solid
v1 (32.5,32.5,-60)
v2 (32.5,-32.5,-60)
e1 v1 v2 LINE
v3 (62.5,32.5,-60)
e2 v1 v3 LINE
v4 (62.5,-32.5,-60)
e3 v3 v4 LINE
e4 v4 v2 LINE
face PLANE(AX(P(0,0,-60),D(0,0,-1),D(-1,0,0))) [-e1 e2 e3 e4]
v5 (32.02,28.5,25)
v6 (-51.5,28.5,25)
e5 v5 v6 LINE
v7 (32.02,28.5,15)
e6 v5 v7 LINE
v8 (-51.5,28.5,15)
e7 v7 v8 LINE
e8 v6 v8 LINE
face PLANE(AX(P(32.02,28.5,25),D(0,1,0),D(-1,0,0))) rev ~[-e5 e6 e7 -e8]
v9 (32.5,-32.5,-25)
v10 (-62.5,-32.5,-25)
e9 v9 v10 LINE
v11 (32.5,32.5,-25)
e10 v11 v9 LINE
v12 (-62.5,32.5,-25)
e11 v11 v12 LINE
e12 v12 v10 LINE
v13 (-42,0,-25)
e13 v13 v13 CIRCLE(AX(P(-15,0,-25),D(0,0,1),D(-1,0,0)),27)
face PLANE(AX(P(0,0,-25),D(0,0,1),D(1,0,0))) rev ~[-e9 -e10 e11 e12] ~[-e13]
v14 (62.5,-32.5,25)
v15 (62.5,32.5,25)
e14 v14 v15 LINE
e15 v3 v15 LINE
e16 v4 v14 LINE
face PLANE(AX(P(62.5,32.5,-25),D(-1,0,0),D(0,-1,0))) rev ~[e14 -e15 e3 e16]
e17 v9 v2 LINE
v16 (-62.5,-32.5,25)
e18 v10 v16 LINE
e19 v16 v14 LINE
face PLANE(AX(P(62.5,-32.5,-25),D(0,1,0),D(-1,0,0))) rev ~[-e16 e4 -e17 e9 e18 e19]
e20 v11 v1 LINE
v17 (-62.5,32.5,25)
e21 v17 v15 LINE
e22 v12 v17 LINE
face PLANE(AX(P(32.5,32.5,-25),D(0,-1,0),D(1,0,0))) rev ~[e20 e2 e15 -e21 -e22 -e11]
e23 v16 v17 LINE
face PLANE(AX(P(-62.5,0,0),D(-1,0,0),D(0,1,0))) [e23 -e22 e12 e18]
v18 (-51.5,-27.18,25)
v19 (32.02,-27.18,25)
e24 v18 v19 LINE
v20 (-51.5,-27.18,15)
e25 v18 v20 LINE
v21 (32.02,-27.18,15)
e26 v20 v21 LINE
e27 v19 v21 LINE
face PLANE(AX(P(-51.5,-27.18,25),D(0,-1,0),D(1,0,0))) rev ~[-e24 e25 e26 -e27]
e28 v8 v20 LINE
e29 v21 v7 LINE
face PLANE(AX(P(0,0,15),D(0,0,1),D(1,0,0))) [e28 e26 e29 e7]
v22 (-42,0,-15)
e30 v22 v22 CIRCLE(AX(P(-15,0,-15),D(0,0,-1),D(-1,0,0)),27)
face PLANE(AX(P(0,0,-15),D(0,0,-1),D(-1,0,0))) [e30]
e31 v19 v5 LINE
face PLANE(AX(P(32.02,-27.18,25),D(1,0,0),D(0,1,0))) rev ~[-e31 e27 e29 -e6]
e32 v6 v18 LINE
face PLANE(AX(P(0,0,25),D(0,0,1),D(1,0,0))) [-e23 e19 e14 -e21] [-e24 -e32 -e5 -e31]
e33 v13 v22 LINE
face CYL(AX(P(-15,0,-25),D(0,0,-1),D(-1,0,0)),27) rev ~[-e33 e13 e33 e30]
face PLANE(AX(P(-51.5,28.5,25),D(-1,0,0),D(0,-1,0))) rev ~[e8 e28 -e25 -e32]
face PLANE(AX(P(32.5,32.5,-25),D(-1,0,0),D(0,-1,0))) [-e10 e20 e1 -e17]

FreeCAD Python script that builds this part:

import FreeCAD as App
import Part
import Sketcher

V = App.Vector


def add_polygon(sketch, points):
    """Adds a closed chain of lines whose ends are joined by coincident constraints."""
    first, n = sketch.GeometryCount, len(points)
    for a, b in zip(points, points[1:] + points[:1]):
        sketch.addGeometry(Part.LineSegment(App.Vector(*a, 0), App.Vector(*b, 0)), False)
    for i in range(n):
        sketch.addConstraint(Sketcher.Constraint("Coincident", first + i, 2, first + (i + 1) % n, 1))

doc = App.newDocument("Part")
body = doc.addObject("PartDesign::Body", "Body")

# Sketch on XY plane
sketch1 = body.newObject("Sketcher::SketchObject", "Sketch")
sketch1.AttachmentSupport = (doc.getObject("XY_Plane"), [""])
sketch1.MapMode = "FlatFace"
add_polygon(sketch1, [(-62, 32), (-62, -32), (62, -32), (62, 32)])  # lines 0-3
sketch1.addConstraint(Sketcher.Constraint("Vertical", 0))
sketch1.addConstraint(Sketcher.Constraint("Horizontal", 1))
sketch1.addConstraint(Sketcher.Constraint("Vertical", 2))
sketch1.addConstraint(Sketcher.Constraint("Horizontal", 3))
sketch1.addConstraint(Sketcher.Constraint("Symmetric", 0, 2, 2, 2, -1, 1))
sketch1.addConstraint(Sketcher.Constraint("DistanceX", 1, 1, 1, 2, 125.0))
sketch1.addConstraint(Sketcher.Constraint("DistanceY", 0, 2, 0, 1, 65.0))
pad1 = body.newObject("PartDesign::Pad", "Pad")
pad1.Profile = sketch1
pad1.Length = 50
pad1.Midplane = True

# Sketch on XY plane
sketch2 = body.newObject("Sketcher::SketchObject", "Sketch001")
sketch2.AttachmentSupport = (doc.getObject("XY_Plane"), [""])
sketch2.MapMode = "FlatFace"
sketch2.AttachmentOffset = App.Placement(V(0, 0, -25), App.Rotation())
sketch2.addGeometry(Part.Circle(V(-15, 0, 0), V(0, 0, 1), 27), False)
sketch2.addConstraint(Sketcher.Constraint("PointOnObject", 0, 3, -1))
sketch2.addConstraint(Sketcher.Constraint("Diameter", 0, 54.0))
sketch2.addConstraint(Sketcher.Constraint("DistanceX", 0, 3, -1, 1, 15.0))
pocket1 = body.newObject("PartDesign::Pocket", "Pocket")
pocket1.Profile = sketch2
pocket1.Length = 10
pocket1.Reversed = True

# Sketch on XY plane
sketch3 = body.newObject("Sketcher::SketchObject", "Sketch002")
sketch3.AttachmentSupport = (doc.getObject("XY_Plane"), [""])
sketch3.MapMode = "FlatFace"
sketch3.AttachmentOffset = App.Placement(V(0, 0, 25), App.Rotation())
add_polygon(sketch3, [(32, -27), (32, 28), (-52, 28), (-52, -27)])  # lines 0-3
sketch3.addConstraint(Sketcher.Constraint("Vertical", 0))
sketch3.addConstraint(Sketcher.Constraint("Horizontal", 1))
sketch3.addConstraint(Sketcher.Constraint("Vertical", 2))
sketch3.addConstraint(Sketcher.Constraint("Horizontal", 3))
sketch3.addConstraint(Sketcher.Constraint("DistanceX", 1, 2, 1, 1, 83.52))
sketch3.addConstraint(Sketcher.Constraint("DistanceY", 0, 1, 0, 2, 55.68))
sketch3.addConstraint(Sketcher.Constraint("DistanceY", -1, 1, 0, 2, 28.5))
sketch3.addConstraint(Sketcher.Constraint("DistanceX", 1, 2, -1, 1, 51.5))
pocket2 = body.newObject("PartDesign::Pocket", "Pocket001")
pocket2.Profile = sketch3
pocket2.Length = 10

# Sketch on XY plane
sketch4 = body.newObject("Sketcher::SketchObject", "Sketch003")
sketch4.AttachmentSupport = (doc.getObject("XY_Plane"), [""])
sketch4.MapMode = "FlatFace"
sketch4.AttachmentOffset = App.Placement(V(0, 0, -25), App.Rotation())
add_polygon(sketch4, [(62, -32), (32, -32), (32, 32), (62, 32)])  # lines 0-3
sketch4.addConstraint(Sketcher.Constraint("Horizontal", 0))
sketch4.addConstraint(Sketcher.Constraint("Vertical", 1))
sketch4.addConstraint(Sketcher.Constraint("Horizontal", 2))
sketch4.addConstraint(Sketcher.Constraint("Vertical", 3))
sketch4.addConstraint(Sketcher.Constraint("DistanceX", 0, 2, 0, 1, 30.0))
sketch4.addConstraint(Sketcher.Constraint("DistanceY", 1, 1, 1, 2, 65.0))
sketch4.addConstraint(Sketcher.Constraint("DistanceX", -1, 1, 0, 2, 32.5))
sketch4.addConstraint(Sketcher.Constraint("DistanceY", 0, 2, -1, 1, 32.5))
pad2 = body.newObject("PartDesign::Pad", "Pad001")
pad2.Profile = sketch4
pad2.Length = 35
pad2.Reversed = True

doc.recompute()
